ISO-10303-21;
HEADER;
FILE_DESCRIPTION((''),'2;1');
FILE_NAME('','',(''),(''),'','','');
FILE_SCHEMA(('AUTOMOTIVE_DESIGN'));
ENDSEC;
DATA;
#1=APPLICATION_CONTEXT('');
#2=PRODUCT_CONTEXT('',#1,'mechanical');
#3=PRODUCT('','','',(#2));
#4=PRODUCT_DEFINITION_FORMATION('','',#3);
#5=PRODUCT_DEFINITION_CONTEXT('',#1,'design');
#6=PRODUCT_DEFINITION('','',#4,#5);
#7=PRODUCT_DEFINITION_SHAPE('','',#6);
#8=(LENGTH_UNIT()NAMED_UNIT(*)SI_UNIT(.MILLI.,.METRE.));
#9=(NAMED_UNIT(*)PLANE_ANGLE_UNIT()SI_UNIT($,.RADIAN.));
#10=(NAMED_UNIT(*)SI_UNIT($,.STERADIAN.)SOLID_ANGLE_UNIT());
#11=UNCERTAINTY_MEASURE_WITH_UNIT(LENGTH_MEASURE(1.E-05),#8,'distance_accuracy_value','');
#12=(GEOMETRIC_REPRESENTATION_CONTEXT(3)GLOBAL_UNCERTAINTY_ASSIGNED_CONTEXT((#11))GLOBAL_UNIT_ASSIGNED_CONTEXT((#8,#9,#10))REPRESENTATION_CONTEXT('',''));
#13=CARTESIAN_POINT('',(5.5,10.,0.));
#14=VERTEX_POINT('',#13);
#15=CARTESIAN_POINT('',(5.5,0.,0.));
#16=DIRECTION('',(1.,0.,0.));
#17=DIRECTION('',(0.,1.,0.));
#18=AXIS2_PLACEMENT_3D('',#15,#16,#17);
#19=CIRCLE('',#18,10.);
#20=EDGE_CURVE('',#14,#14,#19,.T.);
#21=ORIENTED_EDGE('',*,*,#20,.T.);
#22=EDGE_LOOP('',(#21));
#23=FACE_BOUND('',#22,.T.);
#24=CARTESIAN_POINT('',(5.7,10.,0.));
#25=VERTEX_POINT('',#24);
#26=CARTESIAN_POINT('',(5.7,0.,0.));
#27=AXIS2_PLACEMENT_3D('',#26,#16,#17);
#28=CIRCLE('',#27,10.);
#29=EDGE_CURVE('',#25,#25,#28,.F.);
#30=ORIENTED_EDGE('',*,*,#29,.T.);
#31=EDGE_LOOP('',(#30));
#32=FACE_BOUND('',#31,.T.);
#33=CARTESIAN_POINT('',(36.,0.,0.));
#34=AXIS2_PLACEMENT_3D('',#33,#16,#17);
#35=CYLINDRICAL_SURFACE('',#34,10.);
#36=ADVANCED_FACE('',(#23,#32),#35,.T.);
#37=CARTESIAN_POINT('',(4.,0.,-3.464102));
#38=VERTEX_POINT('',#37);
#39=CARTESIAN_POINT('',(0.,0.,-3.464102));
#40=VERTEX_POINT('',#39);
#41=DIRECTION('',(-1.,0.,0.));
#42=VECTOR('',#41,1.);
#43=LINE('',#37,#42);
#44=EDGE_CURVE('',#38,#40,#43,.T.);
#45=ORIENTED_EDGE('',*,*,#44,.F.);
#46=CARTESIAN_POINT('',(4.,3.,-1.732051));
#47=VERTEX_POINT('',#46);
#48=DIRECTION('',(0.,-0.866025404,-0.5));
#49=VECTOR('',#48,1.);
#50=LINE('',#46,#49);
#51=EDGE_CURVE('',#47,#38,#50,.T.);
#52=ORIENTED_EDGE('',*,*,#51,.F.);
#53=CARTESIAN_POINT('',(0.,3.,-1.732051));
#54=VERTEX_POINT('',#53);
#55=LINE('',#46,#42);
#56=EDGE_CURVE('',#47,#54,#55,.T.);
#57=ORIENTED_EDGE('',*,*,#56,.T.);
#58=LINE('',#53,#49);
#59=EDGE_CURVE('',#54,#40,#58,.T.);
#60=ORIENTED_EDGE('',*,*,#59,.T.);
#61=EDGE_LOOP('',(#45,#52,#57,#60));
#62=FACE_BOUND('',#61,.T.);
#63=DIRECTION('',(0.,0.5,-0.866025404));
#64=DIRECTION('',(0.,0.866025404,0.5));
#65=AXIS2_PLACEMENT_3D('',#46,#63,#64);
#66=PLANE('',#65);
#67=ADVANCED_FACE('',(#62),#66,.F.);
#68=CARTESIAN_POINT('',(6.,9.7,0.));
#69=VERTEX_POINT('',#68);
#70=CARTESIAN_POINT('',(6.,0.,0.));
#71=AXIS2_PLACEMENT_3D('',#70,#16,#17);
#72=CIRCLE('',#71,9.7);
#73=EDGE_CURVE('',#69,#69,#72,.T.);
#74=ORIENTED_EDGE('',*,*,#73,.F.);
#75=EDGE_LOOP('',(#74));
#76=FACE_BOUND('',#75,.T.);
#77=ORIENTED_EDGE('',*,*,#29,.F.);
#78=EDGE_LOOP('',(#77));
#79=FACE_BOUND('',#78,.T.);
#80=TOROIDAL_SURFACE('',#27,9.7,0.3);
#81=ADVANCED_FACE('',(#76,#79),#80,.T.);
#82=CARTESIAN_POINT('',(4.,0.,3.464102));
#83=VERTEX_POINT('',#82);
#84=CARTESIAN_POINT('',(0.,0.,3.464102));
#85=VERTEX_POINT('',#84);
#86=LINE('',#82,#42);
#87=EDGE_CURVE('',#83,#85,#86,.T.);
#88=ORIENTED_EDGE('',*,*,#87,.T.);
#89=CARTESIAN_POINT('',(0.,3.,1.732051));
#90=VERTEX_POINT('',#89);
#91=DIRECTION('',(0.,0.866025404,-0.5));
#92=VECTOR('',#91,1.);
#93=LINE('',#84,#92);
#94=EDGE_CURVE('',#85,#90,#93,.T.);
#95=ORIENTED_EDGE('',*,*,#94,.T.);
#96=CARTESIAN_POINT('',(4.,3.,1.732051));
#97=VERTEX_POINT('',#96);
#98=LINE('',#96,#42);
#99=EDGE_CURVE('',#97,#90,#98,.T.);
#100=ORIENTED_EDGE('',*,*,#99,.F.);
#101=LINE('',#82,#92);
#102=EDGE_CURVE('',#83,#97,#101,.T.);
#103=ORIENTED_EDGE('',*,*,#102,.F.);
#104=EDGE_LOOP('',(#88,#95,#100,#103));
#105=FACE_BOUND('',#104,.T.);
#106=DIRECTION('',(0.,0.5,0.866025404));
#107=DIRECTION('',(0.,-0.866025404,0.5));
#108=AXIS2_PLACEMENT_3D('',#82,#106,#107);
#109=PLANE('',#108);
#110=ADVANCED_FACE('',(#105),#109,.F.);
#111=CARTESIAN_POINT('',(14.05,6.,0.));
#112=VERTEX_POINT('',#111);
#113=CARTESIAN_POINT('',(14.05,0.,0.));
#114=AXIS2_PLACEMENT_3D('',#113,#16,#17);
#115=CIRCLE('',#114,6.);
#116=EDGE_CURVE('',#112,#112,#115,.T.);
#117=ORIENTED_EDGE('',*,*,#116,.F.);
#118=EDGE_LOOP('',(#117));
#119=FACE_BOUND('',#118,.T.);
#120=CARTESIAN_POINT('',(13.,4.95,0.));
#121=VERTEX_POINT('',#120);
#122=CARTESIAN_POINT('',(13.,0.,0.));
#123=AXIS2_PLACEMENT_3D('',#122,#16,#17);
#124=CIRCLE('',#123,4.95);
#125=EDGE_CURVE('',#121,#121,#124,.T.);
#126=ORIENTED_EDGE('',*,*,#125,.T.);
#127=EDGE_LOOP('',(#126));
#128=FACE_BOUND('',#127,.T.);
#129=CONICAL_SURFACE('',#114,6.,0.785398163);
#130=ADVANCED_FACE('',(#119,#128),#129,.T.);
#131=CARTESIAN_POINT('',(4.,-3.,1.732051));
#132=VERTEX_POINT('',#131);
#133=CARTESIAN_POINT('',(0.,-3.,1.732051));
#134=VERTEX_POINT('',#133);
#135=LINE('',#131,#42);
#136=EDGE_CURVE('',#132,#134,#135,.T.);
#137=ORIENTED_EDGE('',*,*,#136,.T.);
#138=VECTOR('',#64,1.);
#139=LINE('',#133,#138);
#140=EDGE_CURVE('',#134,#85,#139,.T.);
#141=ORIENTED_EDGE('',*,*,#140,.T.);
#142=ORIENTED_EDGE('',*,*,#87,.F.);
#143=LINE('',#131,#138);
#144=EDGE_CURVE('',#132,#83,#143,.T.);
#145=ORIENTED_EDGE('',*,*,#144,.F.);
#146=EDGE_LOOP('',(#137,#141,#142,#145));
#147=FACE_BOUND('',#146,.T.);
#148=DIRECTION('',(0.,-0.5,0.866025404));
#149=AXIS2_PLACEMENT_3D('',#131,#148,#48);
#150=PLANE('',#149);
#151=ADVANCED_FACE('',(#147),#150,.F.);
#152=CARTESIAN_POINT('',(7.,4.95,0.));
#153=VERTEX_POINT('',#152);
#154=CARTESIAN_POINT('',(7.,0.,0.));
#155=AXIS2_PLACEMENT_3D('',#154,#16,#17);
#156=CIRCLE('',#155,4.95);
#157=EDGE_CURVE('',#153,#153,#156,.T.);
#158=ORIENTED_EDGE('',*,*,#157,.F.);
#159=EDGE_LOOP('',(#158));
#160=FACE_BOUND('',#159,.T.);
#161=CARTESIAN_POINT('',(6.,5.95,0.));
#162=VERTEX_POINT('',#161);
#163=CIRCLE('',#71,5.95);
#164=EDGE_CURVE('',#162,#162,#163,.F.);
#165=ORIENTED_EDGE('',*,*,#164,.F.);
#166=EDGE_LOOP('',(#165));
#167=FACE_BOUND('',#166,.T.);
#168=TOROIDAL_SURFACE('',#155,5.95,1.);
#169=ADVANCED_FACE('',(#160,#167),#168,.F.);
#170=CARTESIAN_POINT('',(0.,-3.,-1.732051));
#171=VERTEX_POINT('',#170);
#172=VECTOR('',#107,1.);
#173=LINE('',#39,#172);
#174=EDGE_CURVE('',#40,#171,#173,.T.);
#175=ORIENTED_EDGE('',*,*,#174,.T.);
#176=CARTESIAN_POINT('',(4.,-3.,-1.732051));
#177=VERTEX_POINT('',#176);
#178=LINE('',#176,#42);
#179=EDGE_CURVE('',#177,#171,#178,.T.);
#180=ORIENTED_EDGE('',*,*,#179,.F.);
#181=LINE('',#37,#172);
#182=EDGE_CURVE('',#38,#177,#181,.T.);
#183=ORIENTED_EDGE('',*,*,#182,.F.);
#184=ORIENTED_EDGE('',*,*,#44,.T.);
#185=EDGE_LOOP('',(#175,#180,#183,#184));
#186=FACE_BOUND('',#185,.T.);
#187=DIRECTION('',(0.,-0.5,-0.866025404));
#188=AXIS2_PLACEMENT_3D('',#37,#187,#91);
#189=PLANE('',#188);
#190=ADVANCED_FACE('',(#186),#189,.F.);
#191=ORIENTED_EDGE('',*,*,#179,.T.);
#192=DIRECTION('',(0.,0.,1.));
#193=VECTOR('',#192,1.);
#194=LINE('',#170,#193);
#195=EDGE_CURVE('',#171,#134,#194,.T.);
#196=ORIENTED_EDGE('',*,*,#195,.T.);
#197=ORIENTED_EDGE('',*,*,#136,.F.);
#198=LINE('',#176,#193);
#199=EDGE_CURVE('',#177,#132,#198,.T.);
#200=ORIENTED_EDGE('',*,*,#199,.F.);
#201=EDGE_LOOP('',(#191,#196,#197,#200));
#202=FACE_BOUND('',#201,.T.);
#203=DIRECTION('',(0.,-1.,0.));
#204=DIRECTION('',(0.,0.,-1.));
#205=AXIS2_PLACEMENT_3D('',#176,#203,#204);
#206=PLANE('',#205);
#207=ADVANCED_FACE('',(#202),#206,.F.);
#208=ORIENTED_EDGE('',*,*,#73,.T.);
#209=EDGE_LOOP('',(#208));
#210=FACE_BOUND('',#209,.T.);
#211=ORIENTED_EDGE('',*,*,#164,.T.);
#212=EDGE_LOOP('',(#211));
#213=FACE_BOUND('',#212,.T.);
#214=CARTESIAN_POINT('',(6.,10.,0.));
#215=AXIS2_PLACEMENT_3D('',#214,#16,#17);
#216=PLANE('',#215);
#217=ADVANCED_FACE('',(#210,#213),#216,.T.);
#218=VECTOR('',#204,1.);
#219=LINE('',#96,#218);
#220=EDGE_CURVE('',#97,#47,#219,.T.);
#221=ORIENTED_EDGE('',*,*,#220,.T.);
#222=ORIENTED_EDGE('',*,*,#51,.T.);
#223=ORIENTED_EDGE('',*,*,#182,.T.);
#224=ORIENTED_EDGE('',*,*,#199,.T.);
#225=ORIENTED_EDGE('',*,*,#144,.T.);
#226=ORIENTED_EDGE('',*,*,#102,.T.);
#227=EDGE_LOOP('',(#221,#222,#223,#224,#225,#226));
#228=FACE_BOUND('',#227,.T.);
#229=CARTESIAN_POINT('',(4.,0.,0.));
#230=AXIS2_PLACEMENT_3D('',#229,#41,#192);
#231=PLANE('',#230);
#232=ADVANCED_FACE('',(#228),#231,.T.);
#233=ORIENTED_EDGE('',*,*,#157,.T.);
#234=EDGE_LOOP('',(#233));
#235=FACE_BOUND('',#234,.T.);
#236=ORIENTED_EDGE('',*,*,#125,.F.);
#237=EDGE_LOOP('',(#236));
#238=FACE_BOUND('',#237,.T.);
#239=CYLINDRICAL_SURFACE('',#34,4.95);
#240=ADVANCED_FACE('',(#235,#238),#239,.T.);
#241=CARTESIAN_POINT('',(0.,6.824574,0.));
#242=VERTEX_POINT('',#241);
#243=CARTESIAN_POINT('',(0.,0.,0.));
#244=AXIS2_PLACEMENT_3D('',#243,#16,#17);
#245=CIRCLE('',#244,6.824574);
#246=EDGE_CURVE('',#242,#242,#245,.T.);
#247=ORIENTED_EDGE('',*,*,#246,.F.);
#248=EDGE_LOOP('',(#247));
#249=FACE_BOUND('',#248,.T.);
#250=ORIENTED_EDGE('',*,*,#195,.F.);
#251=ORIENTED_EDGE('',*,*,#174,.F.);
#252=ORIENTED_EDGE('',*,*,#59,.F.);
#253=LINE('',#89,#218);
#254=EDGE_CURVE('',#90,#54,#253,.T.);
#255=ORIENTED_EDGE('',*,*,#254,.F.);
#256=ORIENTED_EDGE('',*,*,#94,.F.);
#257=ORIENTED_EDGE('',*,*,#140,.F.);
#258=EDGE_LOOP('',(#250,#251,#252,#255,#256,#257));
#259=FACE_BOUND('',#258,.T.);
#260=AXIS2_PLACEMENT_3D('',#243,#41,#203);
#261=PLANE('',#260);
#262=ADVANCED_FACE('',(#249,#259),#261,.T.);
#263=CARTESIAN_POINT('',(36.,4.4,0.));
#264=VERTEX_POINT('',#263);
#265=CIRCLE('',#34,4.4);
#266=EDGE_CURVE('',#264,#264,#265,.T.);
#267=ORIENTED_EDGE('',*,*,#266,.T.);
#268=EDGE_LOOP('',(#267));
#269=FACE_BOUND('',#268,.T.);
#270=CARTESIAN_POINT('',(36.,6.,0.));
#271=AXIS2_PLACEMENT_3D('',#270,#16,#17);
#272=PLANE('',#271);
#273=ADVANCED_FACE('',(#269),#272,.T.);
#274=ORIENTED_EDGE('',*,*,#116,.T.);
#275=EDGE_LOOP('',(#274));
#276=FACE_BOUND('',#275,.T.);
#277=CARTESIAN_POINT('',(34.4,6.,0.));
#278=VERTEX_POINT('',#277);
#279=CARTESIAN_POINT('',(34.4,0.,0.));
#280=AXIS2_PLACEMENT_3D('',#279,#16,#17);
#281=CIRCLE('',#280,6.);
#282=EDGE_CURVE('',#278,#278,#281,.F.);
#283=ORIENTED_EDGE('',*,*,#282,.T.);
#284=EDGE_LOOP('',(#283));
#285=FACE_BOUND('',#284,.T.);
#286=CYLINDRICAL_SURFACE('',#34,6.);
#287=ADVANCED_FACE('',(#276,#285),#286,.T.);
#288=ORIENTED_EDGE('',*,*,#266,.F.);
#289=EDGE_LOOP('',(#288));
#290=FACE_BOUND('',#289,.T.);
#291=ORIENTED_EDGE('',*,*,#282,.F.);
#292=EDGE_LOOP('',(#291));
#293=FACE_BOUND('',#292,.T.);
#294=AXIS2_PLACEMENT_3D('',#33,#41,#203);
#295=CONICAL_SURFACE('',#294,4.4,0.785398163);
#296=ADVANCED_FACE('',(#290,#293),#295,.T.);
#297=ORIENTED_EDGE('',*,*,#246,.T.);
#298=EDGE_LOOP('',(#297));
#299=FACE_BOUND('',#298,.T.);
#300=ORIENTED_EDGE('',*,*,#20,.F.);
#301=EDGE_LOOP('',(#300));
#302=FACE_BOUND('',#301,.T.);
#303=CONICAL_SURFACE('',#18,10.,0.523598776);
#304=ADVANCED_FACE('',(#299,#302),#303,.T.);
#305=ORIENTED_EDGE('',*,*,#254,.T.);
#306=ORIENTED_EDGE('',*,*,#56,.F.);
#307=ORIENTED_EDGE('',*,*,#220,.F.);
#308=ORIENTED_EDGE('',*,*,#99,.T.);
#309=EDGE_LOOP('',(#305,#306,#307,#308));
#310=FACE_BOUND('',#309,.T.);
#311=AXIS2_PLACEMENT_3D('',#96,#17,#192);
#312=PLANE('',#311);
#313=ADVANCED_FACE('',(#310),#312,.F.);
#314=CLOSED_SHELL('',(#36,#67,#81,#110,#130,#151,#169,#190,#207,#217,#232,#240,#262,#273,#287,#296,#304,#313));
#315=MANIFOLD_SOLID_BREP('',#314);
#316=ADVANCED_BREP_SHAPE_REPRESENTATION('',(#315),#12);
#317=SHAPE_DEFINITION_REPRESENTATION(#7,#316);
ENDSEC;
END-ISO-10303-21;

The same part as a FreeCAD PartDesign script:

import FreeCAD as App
import Part
import Sketcher
Q = App.Units.Quantity


def edges_at(feature, points):
    """Names of the edges that pass closest to the given points."""
    edges = feature.Shape.Edges
    near = lambda p: min(range(len(edges)), key=lambda i: edges[i].distToShape(Part.Vertex(*p))[0])
    return sorted({f"Edge{near(p) + 1}" for p in points})

doc = App.newDocument("Part")
body = doc.addObject("PartDesign::Body", "Body")

# Sketch on XY plane
sketch1 = body.newObject("Sketcher::SketchObject", "Sketch")
sketch1.AttachmentSupport = (doc.getObject("XY_Plane"), [""])
sketch1.MapMode = "FlatFace"
sketch1.addGeometry([
    Part.LineSegment(App.Vector(0, 6.8, 0), App.Vector(0, 0, 0)),  # 0
    Part.LineSegment(App.Vector(0, 0, 0), App.Vector(36, 0, 0)),  # 1
    Part.LineSegment(App.Vector(36, 0, 0), App.Vector(36, 6, 0)),  # 2
    Part.LineSegment(App.Vector(36, 6, 0), App.Vector(14.1, 6, 0)),  # 3
    Part.LineSegment(App.Vector(14.1, 6, 0), App.Vector(13, 5, 0)),  # 4
    Part.LineSegment(App.Vector(13, 5, 0), App.Vector(6, 5, 0)),  # 5
    Part.LineSegment(App.Vector(6, 5, 0), App.Vector(6, 10, 0)),  # 6
    Part.LineSegment(App.Vector(6, 10, 0), App.Vector(5.5, 10, 0)),  # 7
    Part.LineSegment(App.Vector(5.5, 10, 0), App.Vector(0, 6.8, 0)),  # 8
], False)
sketch1.addConstraint([
    Sketcher.Constraint("Coincident", 0, 2, 1, 1),
    Sketcher.Constraint("Coincident", 1, 2, 2, 1),
    Sketcher.Constraint("Coincident", 2, 2, 3, 1),
    Sketcher.Constraint("Coincident", 3, 2, 4, 1),
    Sketcher.Constraint("Coincident", 4, 2, 5, 1),
    Sketcher.Constraint("Coincident", 5, 2, 6, 1),
    Sketcher.Constraint("Coincident", 6, 2, 7, 1),
    Sketcher.Constraint("Coincident", 7, 2, 8, 1),
    Sketcher.Constraint("Coincident", 8, 2, 0, 1),
    Sketcher.Constraint("Vertical", 0),
    Sketcher.Constraint("Horizontal", 1),
    Sketcher.Constraint("Vertical", 2),
    Sketcher.Constraint("Horizontal", 3),
    Sketcher.Constraint("Horizontal", 5),
    Sketcher.Constraint("Vertical", 6),
    Sketcher.Constraint("Horizontal", 7),
    Sketcher.Constraint("Coincident", 0, 2, -1, 1),
    Sketcher.Constraint("DistanceX", 1, 1, 1, 2, 36.0),
    Sketcher.Constraint("DistanceX", 5, 2, 5, 1, 7.0),
    Sketcher.Constraint("DistanceY", 2, 1, 2, 2, 6.0),
    Sketcher.Constraint("Angle", 4, Q("-135 deg")),
    Sketcher.Constraint("Angle", 8, Q("-150 deg")),
    Sketcher.Constraint("DistanceX", 7, 2, 7, 1, 0.5),
    Sketcher.Constraint("DistanceX", -1, 1, 4, 2, 13.0),
    Sketcher.Constraint("DistanceY", -1, 1, 6, 2, 10.0),
    Sketcher.Constraint("DistanceX", 3, 2, 3, 1, 21.95),
])
revolution = body.newObject("PartDesign::Revolution", "Revolution")
revolution.Profile = sketch1
revolution.ReferenceAxis = (sketch1, ["H_Axis"])
revolution.Angle = 360

# Sketch on YZ plane
sketch2 = body.newObject("Sketcher::SketchObject", "Sketch001")
sketch2.AttachmentSupport = (doc.getObject("YZ_Plane"), [""])
sketch2.MapMode = "FlatFace"
sketch2.addGeometry([
    Part.LineSegment(App.Vector(3, 1.7, 0), App.Vector(3, -1.7, 0)),  # 0
    Part.LineSegment(App.Vector(3, -1.7, 0), App.Vector(0, -3.5, 0)),  # 1
    Part.LineSegment(App.Vector(0, -3.5, 0), App.Vector(-3, -1.7, 0)),  # 2
    Part.LineSegment(App.Vector(-3, -1.7, 0), App.Vector(-3, 1.7, 0)),  # 3
    Part.LineSegment(App.Vector(-3, 1.7, 0), App.Vector(0, 3.5, 0)),  # 4
    Part.LineSegment(App.Vector(0, 3.5, 0), App.Vector(3, 1.7, 0)),  # 5
], False)
sketch2.addConstraint([
    Sketcher.Constraint("Coincident", 0, 2, 1, 1),
    Sketcher.Constraint("Coincident", 1, 2, 2, 1),
    Sketcher.Constraint("Coincident", 2, 2, 3, 1),
    Sketcher.Constraint("Coincident", 3, 2, 4, 1),
    Sketcher.Constraint("Coincident", 4, 2, 5, 1),
    Sketcher.Constraint("Coincident", 5, 2, 0, 1),
    Sketcher.Constraint("Vertical", 0),
    Sketcher.Constraint("Vertical", 3),
    Sketcher.Constraint("Symmetric", 0, 2, 3, 2, -1, 1),
    Sketcher.Constraint("Symmetric", 1, 2, 4, 2, -1, 1),
    Sketcher.Constraint("PointOnObject", 1, 2, -2),
    Sketcher.Constraint("Parallel", 2, 5),
    Sketcher.Constraint("Horizontal", 0, 2, 2, 2),
    Sketcher.Constraint("Angle", 1, Q("-150 deg")),
    Sketcher.Constraint("DistanceX", -1, 1, 0, 2, 3.0),
    Sketcher.Constraint("DistanceY", 0, 2, 0, 1, 3.464102),
])
pocket1 = body.newObject("PartDesign::Pocket", "Pocket")
pocket1.Profile = sketch2
pocket1.Length = 4
pocket1.Reversed = True
doc.recompute()

fillet = body.newObject("PartDesign::Fillet", "Fillet")
fillet.Base = (pocket1, edges_at(pocket1, [(6, -10, 0)]))
fillet.Radius = 0.3
doc.recompute()

chamfer = body.newObject("PartDesign::Chamfer", "Chamfer")
chamfer.Base = (fillet, edges_at(fillet, [(36, -6, 0)]))
chamfer.Size = 1.6
doc.recompute()

fillet2 = body.newObject("PartDesign::Fillet", "Fillet001")
fillet2.Base = (chamfer, edges_at(chamfer, [(6, -4.95, 0)]))
fillet2.Radius = 1

doc.recompute()
